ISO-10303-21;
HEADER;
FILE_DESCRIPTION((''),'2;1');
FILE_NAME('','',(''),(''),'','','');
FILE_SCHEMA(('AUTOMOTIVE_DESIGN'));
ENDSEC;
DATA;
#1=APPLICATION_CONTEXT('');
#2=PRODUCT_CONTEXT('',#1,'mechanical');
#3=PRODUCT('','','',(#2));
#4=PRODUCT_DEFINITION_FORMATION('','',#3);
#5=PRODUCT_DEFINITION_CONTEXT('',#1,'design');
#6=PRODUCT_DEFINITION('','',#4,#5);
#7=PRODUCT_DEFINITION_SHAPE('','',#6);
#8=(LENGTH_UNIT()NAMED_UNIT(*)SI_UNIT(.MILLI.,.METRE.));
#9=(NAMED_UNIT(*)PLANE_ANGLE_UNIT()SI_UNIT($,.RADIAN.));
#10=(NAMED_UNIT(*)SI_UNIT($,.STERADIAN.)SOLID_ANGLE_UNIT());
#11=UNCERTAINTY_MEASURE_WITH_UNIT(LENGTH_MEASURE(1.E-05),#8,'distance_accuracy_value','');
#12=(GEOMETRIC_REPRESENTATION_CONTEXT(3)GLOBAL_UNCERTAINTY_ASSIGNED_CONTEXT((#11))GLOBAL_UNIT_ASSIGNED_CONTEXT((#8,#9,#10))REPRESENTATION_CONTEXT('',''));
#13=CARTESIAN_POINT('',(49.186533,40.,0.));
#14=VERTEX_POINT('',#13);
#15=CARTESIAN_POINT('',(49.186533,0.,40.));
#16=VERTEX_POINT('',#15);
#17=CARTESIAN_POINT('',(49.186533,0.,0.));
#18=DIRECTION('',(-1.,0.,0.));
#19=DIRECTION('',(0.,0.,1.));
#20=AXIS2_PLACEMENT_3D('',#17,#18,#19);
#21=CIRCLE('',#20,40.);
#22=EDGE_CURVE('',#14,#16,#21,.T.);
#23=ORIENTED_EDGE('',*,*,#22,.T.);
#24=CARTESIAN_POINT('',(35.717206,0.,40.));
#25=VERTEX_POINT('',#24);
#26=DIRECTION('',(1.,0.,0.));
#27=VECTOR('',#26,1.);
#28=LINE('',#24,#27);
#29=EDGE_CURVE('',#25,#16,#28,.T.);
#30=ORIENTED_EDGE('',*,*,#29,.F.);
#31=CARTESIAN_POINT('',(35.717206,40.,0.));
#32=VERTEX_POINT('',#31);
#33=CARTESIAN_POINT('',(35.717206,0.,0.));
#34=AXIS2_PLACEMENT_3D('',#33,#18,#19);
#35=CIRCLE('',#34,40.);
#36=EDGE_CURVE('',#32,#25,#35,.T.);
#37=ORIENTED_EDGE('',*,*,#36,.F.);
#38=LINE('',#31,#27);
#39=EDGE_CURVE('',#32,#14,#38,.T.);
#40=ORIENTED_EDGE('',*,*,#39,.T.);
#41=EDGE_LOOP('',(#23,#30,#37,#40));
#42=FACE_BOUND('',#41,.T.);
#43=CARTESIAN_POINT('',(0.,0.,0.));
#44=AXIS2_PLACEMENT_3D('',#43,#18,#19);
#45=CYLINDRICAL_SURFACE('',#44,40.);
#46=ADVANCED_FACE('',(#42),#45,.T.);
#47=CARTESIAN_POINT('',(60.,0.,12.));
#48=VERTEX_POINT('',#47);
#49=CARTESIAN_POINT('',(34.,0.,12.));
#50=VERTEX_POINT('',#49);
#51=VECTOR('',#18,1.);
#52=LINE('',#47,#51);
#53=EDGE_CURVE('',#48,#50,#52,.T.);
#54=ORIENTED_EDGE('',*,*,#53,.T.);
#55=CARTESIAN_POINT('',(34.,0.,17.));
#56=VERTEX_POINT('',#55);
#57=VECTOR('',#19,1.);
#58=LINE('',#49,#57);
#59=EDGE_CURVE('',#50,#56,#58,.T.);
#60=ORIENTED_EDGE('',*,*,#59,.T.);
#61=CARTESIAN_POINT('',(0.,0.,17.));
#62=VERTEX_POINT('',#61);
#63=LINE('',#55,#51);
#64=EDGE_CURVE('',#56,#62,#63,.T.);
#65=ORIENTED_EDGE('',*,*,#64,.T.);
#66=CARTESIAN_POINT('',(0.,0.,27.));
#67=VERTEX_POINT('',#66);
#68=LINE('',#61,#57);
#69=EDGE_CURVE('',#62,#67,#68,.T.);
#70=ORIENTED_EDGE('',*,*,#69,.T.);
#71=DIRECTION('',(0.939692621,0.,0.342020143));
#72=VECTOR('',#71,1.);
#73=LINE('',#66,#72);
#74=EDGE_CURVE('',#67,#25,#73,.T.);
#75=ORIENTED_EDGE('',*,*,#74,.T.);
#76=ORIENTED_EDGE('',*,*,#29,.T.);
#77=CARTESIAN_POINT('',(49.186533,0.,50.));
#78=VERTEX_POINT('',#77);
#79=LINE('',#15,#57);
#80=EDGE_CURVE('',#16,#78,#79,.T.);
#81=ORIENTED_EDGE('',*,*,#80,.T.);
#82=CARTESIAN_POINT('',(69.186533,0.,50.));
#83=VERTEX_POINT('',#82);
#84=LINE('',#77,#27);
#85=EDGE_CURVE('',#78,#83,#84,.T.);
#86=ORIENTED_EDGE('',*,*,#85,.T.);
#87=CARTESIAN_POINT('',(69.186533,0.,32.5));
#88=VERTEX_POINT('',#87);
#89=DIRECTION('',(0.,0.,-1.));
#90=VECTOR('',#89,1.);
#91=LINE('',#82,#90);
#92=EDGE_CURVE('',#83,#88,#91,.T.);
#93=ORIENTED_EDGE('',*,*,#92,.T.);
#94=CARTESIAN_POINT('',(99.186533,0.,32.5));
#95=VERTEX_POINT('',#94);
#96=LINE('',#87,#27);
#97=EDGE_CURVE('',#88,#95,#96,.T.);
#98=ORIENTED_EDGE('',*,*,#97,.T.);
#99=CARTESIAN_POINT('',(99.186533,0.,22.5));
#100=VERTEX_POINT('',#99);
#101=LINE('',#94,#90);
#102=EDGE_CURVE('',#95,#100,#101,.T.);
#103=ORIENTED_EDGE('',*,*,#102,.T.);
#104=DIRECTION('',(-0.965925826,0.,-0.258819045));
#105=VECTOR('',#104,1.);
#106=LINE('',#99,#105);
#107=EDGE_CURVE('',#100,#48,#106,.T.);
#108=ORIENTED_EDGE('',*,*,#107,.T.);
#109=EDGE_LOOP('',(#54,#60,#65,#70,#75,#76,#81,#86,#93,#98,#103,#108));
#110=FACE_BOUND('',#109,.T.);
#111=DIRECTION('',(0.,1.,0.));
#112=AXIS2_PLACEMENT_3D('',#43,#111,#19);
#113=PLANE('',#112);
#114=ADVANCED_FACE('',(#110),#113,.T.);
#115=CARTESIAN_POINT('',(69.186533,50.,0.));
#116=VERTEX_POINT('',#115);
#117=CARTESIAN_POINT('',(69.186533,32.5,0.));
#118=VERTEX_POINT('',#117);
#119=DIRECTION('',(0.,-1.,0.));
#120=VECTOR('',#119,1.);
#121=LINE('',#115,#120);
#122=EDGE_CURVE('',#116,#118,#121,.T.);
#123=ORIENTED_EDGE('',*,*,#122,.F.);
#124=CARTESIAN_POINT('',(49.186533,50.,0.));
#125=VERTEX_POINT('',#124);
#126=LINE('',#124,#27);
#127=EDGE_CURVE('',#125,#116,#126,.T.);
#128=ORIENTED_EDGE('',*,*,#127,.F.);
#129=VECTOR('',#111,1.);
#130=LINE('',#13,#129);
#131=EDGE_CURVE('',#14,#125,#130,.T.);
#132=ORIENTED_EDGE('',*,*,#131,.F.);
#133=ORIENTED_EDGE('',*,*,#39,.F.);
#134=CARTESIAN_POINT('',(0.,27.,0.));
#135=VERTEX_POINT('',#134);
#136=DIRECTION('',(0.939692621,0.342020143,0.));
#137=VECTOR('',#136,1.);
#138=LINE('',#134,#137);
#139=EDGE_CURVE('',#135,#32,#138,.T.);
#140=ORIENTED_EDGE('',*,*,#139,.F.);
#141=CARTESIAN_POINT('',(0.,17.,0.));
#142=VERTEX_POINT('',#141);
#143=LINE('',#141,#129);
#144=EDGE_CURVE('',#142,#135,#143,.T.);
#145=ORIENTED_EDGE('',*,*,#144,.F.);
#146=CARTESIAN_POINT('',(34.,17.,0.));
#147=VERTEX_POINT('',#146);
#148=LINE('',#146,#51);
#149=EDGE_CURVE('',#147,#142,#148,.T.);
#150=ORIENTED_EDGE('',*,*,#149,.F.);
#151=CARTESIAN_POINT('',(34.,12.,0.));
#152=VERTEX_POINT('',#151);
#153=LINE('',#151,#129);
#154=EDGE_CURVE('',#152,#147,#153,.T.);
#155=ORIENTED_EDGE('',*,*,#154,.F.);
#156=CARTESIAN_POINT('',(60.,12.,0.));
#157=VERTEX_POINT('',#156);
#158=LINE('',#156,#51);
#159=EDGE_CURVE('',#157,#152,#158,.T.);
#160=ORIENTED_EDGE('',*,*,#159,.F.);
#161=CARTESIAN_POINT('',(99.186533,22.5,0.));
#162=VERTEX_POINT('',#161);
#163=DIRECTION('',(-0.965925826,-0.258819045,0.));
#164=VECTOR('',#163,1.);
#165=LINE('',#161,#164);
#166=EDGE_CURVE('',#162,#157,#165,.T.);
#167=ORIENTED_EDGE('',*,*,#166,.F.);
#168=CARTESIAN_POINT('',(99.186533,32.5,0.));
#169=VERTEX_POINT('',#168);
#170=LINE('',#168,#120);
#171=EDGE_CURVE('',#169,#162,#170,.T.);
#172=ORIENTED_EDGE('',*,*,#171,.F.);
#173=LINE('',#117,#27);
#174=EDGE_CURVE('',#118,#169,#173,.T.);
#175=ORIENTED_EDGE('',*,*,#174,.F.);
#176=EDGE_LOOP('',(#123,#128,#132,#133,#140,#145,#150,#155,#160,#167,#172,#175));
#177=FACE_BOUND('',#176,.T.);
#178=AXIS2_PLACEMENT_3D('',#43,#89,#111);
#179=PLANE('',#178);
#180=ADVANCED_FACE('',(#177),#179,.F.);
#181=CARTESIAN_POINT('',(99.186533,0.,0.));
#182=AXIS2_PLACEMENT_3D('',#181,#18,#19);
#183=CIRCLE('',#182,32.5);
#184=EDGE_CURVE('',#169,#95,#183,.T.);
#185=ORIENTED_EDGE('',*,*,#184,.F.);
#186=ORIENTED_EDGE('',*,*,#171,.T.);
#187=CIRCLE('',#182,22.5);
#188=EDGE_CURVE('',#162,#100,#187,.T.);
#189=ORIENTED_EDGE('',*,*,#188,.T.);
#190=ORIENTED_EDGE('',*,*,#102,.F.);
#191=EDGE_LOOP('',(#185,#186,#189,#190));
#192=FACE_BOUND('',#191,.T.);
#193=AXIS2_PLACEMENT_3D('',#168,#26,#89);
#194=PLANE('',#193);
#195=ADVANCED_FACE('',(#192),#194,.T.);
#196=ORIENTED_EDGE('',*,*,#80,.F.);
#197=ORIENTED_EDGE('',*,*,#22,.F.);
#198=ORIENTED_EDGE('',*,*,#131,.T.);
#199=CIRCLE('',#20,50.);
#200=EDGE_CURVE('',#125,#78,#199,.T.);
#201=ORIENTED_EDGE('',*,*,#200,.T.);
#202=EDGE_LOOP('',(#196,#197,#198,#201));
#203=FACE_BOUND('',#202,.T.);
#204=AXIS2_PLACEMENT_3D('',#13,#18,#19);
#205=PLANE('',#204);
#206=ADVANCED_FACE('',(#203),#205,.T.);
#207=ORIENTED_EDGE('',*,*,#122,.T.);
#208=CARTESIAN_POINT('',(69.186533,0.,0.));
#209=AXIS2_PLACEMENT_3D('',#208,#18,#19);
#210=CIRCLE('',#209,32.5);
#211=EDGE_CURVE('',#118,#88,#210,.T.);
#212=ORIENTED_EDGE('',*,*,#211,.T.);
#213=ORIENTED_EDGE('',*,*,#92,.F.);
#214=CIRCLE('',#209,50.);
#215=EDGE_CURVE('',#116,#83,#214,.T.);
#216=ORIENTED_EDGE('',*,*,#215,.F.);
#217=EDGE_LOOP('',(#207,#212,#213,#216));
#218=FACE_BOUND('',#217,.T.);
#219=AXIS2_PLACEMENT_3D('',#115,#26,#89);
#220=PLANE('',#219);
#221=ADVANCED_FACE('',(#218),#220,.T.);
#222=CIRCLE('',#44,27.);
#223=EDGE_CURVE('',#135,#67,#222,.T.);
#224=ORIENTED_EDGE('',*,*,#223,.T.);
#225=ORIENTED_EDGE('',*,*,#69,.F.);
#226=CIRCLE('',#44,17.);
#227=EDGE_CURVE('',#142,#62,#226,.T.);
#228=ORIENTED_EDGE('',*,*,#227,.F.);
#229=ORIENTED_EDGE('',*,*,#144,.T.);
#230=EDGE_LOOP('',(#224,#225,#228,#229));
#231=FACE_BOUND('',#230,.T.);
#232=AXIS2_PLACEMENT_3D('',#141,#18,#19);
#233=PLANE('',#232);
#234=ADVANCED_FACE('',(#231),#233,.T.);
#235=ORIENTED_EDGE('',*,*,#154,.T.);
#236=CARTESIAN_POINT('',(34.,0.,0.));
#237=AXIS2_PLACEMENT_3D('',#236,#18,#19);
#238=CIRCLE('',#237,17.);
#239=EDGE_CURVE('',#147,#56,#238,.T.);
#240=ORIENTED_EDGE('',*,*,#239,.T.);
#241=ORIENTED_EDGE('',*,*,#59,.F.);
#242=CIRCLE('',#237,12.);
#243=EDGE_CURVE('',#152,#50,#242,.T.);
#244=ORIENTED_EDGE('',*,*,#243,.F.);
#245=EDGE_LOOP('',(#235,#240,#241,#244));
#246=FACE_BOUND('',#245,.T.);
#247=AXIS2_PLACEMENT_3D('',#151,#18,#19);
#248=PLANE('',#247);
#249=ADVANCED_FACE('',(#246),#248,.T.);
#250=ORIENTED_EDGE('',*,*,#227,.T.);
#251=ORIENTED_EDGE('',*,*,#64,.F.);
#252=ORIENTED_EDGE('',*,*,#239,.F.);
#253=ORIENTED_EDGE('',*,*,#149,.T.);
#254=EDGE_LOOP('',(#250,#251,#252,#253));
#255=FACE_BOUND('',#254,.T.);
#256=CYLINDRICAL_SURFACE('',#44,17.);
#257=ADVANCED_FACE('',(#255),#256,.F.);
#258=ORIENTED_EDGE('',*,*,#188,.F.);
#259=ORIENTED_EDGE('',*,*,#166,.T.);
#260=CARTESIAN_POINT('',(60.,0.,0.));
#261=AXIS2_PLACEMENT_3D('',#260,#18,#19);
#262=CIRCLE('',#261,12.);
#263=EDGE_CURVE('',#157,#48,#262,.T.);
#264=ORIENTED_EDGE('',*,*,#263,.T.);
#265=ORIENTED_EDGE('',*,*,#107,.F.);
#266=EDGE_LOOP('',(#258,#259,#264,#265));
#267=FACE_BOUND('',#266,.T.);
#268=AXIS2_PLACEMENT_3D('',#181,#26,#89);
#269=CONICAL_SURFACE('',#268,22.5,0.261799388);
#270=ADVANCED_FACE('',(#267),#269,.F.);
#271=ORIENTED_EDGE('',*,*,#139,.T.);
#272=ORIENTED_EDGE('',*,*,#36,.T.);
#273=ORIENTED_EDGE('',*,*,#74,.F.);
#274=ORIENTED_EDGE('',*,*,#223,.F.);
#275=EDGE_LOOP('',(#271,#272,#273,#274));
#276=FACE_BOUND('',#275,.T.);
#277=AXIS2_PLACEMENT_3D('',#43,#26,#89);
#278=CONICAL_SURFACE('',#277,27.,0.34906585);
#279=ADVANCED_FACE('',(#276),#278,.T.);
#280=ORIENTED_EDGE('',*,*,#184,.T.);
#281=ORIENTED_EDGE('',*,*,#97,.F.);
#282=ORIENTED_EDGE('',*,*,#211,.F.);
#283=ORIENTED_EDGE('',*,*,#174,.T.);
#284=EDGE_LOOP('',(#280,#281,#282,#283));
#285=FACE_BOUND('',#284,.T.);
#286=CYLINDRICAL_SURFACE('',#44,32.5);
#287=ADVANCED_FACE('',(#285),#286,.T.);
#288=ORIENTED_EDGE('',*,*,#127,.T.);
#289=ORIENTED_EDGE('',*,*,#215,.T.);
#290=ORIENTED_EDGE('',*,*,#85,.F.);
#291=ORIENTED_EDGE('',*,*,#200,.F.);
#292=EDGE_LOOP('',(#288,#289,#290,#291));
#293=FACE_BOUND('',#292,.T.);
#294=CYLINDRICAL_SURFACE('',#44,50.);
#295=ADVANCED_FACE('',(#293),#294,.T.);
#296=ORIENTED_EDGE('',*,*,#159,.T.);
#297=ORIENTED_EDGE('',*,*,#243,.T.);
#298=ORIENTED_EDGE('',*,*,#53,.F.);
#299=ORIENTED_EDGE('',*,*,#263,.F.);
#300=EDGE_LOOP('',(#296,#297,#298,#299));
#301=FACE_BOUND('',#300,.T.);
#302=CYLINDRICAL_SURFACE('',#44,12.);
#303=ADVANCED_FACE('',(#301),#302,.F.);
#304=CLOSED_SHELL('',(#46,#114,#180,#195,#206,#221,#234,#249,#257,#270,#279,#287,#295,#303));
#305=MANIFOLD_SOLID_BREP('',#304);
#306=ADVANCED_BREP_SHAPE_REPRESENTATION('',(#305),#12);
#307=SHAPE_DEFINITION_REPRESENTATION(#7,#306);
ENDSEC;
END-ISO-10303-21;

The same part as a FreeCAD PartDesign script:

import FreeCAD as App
import Part
import Sketcher
from FreeCAD import Vector
Q = App.Units.Quantity

doc = App.newDocument("Part")
body = doc.addObject("PartDesign::Body", "Body")

sketch1 = body.newObject("Sketcher::SketchObject", "Sketch")
sketch1.AttachmentSupport = (doc.getObject("XZ_Plane"), [""])
sketch1.MapMode = "FlatFace"
sketch1.addGeometry([
    Part.LineSegment(Vector(0, 17, 0), Vector(0, 27, 0)),
    Part.LineSegment(Vector(0, 27, 0), Vector(35.717206, 40, 0)),
    Part.LineSegment(Vector(35.717206, 40, 0), Vector(49.186533, 40, 0)),
    Part.LineSegment(Vector(49.186533, 40, 0), Vector(49.186533, 50, 0)),
    Part.LineSegment(Vector(49.186533, 50, 0), Vector(69.186533, 50, 0)),
    Part.LineSegment(Vector(69.186533, 50, 0), Vector(69.186533, 32.5, 0)),
    Part.LineSegment(Vector(69.186533, 32.5, 0), Vector(99.186533, 32.5, 0)),
    Part.LineSegment(Vector(99.186533, 32.5, 0), Vector(99.186533, 22.5, 0)),
    Part.LineSegment(Vector(99.186533, 22.5, 0), Vector(60, 12, 0)),
    Part.LineSegment(Vector(60, 12, 0), Vector(34, 12, 0)),
    Part.LineSegment(Vector(34, 12, 0), Vector(34, 17, 0)),
    Part.LineSegment(Vector(34, 17, 0), Vector(0, 17, 0)),
], False)
sketch1.addConstraint([
    Sketcher.Constraint("Coincident", 0, 2, 1, 1),
    Sketcher.Constraint("Coincident", 1, 2, 2, 1),
    Sketcher.Constraint("Coincident", 2, 2, 3, 1),
    Sketcher.Constraint("Coincident", 3, 2, 4, 1),
    Sketcher.Constraint("Coincident", 4, 2, 5, 1),
    Sketcher.Constraint("Coincident", 5, 2, 6, 1),
    Sketcher.Constraint("Coincident", 6, 2, 7, 1),
    Sketcher.Constraint("Coincident", 7, 2, 8, 1),
    Sketcher.Constraint("Coincident", 8, 2, 9, 1),
    Sketcher.Constraint("Coincident", 9, 2, 10, 1),
    Sketcher.Constraint("Coincident", 10, 2, 11, 1),
    Sketcher.Constraint("Coincident", 11, 2, 0, 1),
    Sketcher.Constraint("Vertical", 0),
    Sketcher.Constraint("Horizontal", 2),
    Sketcher.Constraint("Vertical", 3),
    Sketcher.Constraint("Horizontal", 4),
    Sketcher.Constraint("Vertical", 5),
    Sketcher.Constraint("Horizontal", 6),
    Sketcher.Constraint("Vertical", 7),
    Sketcher.Constraint("Horizontal", 9),
    Sketcher.Constraint("Vertical", 10),
    Sketcher.Constraint("Horizontal", 11),
    Sketcher.Constraint("PointOnObject", 0, 2, -2),
    Sketcher.Constraint("Equal", 0, 3),
    Sketcher.Constraint("Equal", 3, 7),
    Sketcher.Constraint("DistanceX", 4, 1, 4, 2, 20.0),
    Sketcher.Constraint("DistanceX", 6, 1, 6, 2, 30.0),
    Sketcher.Constraint("DistanceX", 9, 2, 9, 1, 26.0),
    Sketcher.Constraint("DistanceX", 11, 2, 11, 1, 34.0),
    Sketcher.Constraint("DistanceY", 0, 1, 0, 2, 10.0),
    Sketcher.Constraint("DistanceY", 10, 1, 10, 2, 5.0),
    Sketcher.Constraint("Angle", 1, Q("20 deg")),
    Sketcher.Constraint("Angle", 8, Q("-165 deg")),
    Sketcher.Constraint("DistanceY", 5, 2, 5, 1, 17.5),
    Sketcher.Constraint("DistanceY", -1, 1, 0, 2, 27.0),
    Sketcher.Constraint("DistanceY", -1, 1, 1, 2, 40.0),
])
revolution = body.newObject("PartDesign::Revolution", "Revolution")
revolution.Profile = sketch1
revolution.ReferenceAxis = (sketch1, ["H_Axis"])
revolution.Angle = 270

doc.recompute()
